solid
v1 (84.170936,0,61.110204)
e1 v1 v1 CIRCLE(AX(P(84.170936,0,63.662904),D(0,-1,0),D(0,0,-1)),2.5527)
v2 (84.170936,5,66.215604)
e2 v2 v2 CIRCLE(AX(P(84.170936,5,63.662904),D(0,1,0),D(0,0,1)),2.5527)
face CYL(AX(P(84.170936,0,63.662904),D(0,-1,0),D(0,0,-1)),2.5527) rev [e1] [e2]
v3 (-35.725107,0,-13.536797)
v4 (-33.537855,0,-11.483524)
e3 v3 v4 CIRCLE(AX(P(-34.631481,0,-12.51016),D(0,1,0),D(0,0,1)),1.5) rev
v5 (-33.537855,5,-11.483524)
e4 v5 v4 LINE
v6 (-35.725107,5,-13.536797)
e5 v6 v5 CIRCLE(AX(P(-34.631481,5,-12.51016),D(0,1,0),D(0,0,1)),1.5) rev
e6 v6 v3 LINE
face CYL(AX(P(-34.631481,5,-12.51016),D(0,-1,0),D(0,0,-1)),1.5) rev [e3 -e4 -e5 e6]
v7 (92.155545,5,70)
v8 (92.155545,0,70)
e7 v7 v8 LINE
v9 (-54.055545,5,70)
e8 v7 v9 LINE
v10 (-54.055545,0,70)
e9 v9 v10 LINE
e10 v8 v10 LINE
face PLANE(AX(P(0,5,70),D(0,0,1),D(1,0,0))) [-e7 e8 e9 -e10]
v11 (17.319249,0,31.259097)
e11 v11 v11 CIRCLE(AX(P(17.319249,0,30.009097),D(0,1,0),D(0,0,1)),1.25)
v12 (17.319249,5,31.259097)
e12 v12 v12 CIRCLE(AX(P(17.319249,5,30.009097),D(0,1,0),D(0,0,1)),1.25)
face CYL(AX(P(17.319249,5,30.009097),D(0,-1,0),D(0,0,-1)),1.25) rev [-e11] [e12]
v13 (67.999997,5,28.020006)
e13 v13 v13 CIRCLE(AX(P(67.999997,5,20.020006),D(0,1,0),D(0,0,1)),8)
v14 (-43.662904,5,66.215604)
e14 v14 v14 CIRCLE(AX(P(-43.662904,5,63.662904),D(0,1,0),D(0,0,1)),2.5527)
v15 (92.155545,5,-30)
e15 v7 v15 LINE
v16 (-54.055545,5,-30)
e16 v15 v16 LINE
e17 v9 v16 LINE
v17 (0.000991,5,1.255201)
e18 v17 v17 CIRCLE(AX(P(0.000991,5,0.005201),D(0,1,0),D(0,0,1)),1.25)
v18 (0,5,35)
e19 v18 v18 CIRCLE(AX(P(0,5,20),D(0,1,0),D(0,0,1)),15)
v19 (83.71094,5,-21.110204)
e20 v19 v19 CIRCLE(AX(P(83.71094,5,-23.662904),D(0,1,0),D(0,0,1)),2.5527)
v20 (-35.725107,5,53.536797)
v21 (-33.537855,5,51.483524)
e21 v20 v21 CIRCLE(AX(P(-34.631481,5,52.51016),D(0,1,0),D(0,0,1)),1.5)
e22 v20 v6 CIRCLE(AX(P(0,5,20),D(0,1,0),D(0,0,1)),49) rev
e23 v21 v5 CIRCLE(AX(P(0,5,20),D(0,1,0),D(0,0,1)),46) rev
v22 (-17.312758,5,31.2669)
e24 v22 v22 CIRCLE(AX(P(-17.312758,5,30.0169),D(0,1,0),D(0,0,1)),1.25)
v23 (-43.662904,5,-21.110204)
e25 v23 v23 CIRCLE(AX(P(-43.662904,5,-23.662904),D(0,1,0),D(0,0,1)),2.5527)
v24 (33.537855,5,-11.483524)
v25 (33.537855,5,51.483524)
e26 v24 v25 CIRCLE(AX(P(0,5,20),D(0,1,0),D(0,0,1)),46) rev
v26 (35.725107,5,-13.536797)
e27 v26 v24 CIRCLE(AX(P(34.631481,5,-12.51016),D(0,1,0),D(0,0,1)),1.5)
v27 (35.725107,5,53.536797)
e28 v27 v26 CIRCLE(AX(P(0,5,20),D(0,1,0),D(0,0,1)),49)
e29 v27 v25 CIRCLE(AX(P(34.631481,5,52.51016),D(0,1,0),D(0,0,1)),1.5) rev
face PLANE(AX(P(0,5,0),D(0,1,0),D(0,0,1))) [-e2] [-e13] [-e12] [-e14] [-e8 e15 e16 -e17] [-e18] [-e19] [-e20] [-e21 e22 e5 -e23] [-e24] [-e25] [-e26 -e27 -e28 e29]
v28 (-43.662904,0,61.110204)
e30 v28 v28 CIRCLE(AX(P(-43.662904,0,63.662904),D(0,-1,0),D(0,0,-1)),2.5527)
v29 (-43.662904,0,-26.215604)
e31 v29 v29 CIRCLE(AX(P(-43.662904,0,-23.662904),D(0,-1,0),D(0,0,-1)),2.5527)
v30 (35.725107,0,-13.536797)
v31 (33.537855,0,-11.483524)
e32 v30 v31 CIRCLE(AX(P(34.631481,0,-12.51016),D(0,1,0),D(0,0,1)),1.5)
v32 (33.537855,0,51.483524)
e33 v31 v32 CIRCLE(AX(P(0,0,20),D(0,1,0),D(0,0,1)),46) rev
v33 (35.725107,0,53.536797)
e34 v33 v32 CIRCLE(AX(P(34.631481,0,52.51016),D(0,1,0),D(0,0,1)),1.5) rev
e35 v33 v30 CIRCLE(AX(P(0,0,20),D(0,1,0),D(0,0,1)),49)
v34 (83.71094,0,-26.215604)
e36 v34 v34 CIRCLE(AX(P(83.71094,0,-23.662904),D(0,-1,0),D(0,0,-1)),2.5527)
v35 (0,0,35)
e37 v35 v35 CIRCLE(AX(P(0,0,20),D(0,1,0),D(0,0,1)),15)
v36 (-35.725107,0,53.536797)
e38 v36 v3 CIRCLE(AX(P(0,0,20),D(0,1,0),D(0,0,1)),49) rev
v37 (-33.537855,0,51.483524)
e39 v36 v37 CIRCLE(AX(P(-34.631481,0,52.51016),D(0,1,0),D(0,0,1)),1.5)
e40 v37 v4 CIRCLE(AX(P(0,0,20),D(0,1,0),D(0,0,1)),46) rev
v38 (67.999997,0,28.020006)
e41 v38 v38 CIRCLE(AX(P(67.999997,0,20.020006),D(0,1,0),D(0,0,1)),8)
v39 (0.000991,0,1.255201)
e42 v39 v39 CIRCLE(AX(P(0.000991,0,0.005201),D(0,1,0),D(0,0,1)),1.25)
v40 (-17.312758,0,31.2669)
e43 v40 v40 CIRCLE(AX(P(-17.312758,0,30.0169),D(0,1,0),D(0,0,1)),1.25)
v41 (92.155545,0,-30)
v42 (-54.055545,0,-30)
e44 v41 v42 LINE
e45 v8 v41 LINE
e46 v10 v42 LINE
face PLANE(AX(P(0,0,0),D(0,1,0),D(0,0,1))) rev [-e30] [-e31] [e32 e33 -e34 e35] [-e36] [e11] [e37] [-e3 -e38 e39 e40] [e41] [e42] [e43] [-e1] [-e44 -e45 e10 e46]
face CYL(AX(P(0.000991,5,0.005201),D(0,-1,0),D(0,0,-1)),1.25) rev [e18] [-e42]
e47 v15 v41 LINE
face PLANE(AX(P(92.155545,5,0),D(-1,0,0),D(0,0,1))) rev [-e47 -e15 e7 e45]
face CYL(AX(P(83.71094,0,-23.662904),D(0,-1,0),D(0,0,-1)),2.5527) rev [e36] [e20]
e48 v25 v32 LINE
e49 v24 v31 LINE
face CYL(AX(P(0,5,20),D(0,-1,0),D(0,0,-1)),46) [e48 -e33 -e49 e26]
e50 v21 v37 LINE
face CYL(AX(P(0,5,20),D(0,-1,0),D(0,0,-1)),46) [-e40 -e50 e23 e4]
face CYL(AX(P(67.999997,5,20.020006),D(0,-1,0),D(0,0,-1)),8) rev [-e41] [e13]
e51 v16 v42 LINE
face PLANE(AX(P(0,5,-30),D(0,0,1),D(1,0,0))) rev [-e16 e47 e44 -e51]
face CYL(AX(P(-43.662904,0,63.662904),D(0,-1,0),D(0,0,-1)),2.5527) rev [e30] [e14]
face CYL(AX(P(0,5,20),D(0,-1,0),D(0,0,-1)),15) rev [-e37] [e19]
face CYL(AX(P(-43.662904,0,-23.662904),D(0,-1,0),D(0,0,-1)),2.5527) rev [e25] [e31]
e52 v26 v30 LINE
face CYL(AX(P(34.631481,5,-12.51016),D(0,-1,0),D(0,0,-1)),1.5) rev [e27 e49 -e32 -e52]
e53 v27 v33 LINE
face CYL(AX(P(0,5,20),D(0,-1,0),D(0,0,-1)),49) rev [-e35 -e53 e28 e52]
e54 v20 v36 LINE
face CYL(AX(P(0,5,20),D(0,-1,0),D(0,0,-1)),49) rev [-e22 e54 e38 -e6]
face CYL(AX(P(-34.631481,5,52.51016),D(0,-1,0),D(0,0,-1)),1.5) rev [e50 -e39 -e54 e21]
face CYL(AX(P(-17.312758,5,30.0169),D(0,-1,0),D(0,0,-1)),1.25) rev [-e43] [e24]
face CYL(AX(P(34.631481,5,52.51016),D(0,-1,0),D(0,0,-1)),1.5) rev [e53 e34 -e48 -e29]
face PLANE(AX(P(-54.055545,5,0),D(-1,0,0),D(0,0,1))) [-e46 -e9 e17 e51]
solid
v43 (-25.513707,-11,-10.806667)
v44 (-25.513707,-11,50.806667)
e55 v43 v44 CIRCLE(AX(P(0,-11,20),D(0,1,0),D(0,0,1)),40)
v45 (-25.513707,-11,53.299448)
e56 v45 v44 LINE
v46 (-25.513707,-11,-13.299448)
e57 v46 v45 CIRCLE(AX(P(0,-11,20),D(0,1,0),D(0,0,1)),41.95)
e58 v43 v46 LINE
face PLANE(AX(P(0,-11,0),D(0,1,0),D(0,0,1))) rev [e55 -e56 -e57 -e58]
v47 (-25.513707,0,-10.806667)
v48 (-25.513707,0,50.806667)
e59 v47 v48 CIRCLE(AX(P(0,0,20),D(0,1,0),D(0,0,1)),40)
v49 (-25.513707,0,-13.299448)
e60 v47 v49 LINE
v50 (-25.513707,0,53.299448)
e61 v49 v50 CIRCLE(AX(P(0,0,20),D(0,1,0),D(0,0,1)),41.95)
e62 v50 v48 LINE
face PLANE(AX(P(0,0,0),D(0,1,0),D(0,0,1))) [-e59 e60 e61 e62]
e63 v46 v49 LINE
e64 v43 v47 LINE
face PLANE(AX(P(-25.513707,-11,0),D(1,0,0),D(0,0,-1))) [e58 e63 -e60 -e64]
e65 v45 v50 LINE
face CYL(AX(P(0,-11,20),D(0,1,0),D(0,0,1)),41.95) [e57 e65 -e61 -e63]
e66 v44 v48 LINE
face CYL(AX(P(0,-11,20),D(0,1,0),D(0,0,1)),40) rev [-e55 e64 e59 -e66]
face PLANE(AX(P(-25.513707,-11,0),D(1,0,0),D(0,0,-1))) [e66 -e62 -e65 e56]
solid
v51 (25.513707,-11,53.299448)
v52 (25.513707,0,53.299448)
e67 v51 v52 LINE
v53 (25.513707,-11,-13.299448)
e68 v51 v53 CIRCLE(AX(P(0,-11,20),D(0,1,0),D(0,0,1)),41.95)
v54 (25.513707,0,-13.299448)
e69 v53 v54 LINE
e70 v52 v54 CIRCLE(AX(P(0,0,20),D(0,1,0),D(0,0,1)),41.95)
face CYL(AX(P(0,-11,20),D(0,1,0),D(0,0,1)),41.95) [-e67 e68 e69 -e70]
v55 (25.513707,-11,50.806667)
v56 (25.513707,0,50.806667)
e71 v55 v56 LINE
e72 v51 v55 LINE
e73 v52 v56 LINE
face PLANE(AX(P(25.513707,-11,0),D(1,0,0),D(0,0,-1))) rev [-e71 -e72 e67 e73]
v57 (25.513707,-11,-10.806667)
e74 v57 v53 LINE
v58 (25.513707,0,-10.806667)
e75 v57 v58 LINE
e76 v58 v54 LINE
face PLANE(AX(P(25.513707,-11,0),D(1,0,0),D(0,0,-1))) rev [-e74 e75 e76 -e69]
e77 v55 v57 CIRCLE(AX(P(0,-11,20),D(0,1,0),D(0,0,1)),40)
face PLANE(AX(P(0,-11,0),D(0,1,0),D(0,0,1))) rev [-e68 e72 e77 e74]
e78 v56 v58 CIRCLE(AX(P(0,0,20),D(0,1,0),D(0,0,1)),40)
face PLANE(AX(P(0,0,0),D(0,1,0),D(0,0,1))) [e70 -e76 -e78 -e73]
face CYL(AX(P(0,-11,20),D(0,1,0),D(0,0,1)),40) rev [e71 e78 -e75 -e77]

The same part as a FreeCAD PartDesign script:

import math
import FreeCAD as App
import Part
import Sketcher
from FreeCAD import Vector
Q = App.Units.Quantity

doc = App.newDocument("Part")
params = doc.addObject("Spreadsheet::Sheet", "Params")
for row, (alias, value) in enumerate([
    ("sketch1_diameter", "16 mm"),
    ("sketch1_diameter2", "30 mm"),
    ("sketch1_radius", "46 mm"),
    ("sketch1_radius2", "49 mm"),
    ("sketch1_diameter3", "2.5 mm"),
    ("pad1_length", "5 mm"),
    ("sketch2_width", "25.4 mm"),
    ("groove_angle", "360 deg"),
    ("linearpattern_pitch", "87.325809 mm"),
    ("linearpattern2_pitch", "154.434106 mm"),
    ("linearpattern3_pitch", "127.83384 mm"),
    ("sketch3_radius", "40 mm"),
    ("sketch3_radius2", "41.95 mm"),
    ("pad2_length", "11 mm"),
    ("sketch4_radius", "40 mm"),
    ("sketch4_radius2", "41.95 mm"),
    ("pad3_length", "11 mm"),
], start=1):
    params.set(f"A{row}", alias)
    params.set(f"B{row}", "=" + value)
    params.setAlias(f"B{row}", alias)

body = doc.addObject("PartDesign::Body", "Body")

sketch1 = body.newObject("Sketcher::SketchObject", "Sketch")
sketch1.AttachmentSupport = (doc.getObject("XZ_Plane"), [""])
sketch1.MapMode = "FlatFace"
sketch1.addGeometry(Part.LineSegment(Vector(-54.1, -30, 0), Vector(-54.1, 70, 0)), False)
sketch1.addGeometry(Part.LineSegment(Vector(-54.1, 70, 0), Vector(92.2, 70, 0)), False)
sketch1.addGeometry(Part.LineSegment(Vector(92.2, 70, 0), Vector(92.2, -30, 0)), False)
sketch1.addGeometry(Part.LineSegment(Vector(92.2, -30, 0), Vector(-54.1, -30, 0)), False)
sketch1.addGeometry(Part.ArcOfCircle(Part.Circle(Vector(-34.6, -12.5, 0), Vector(0, 0, 1), 1.5), math.radians(-137), math.radians(43)), False)
sketch1.addGeometry(Part.ArcOfCircle(Part.Circle(Vector(0, 20, 0), Vector(0, 0, 1), 46), math.radians(137), math.radians(223)), False)
sketch1.addGeometry(Part.ArcOfCircle(Part.Circle(Vector(-34.6, 52.5, 0), Vector(0, 0, 1), 1.5), math.radians(-43), math.radians(137)), False)
sketch1.addGeometry(Part.ArcOfCircle(Part.Circle(Vector(0, 20, 0), Vector(0, 0, 1), 49), math.radians(137), math.radians(223)), False)
sketch1.addGeometry(Part.Circle(Vector(-17.3, 30, 0), Vector(0, 0, 1), 1.2), False)
sketch1.addGeometry(Part.Circle(Vector(17.3, 30, 0), Vector(0, 0, 1), 1.2), False)
sketch1.addGeometry(Part.Circle(Vector(68, 20, 0), Vector(0, 0, 1), 8), False)
sketch1.addGeometry(Part.Circle(Vector(0, 20, 0), Vector(0, 0, 1), 15), False)
sketch1.addGeometry(Part.Circle(Vector(0, 0, 0), Vector(0, 0, 1), 1.2), False)
sketch1.addGeometry(Part.ArcOfCircle(Part.Circle(Vector(0, 20, 0), Vector(0, 0, 1), 46), math.radians(-43), math.radians(43)), False)
sketch1.addGeometry(Part.ArcOfCircle(Part.Circle(Vector(34.6, -12.5, 0), Vector(0, 0, 1), 1.5), math.radians(137), math.radians(317)), False)
sketch1.addGeometry(Part.ArcOfCircle(Part.Circle(Vector(0, 20, 0), Vector(0, 0, 1), 49), math.radians(-43), math.radians(43)), False)
sketch1.addGeometry(Part.ArcOfCircle(Part.Circle(Vector(34.6, 52.5, 0), Vector(0, 0, 1), 1.5), math.radians(43), math.radians(223)), False)
sketch1.addConstraint(Sketcher.Constraint("Coincident", 0, 2, 1, 1))
sketch1.addConstraint(Sketcher.Constraint("Coincident", 1, 2, 2, 1))
sketch1.addConstraint(Sketcher.Constraint("Coincident", 2, 2, 3, 1))
sketch1.addConstraint(Sketcher.Constraint("Coincident", 3, 2, 0, 1))
sketch1.addConstraint(Sketcher.Constraint("Tangent", 4, 2, 5, 2))
sketch1.addConstraint(Sketcher.Constraint("Tangent", 5, 1, 6, 1))
sketch1.addConstraint(Sketcher.Constraint("Tangent", 6, 2, 7, 1))
sketch1.addConstraint(Sketcher.Constraint("Tangent", 7, 2, 4, 1))
sketch1.addConstraint(Sketcher.Constraint("Tangent", 13, 1, 14, 1))
sketch1.addConstraint(Sketcher.Constraint("Tangent", 14, 2, 15, 1))
sketch1.addConstraint(Sketcher.Constraint("Tangent", 15, 2, 16, 1))
sketch1.addConstraint(Sketcher.Constraint("Tangent", 16, 2, 13, 2))
sketch1.addConstraint(Sketcher.Constraint("Vertical", 0))
sketch1.addConstraint(Sketcher.Constraint("Horizontal", 1))
sketch1.addConstraint(Sketcher.Constraint("Vertical", 2))
sketch1.addConstraint(Sketcher.Constraint("Horizontal", 3))
sketch1.addConstraint(Sketcher.Constraint("Coincident", 7, 3, 5, 3))
sketch1.addConstraint(Sketcher.Constraint("Coincident", 11, 3, 5, 3))
sketch1.addConstraint(Sketcher.Constraint("Coincident", 13, 3, 5, 3))
sketch1.addConstraint(Sketcher.Constraint("Coincident", 15, 3, 5, 3))
sketch1.addConstraint(Sketcher.Constraint("Equal", 8, 9))
sketch1.addConstraint(Sketcher.Constraint("Equal", 9, 12))
sketch1.addConstraint(Sketcher.Constraint("Equal", 5, 13))
sketch1.addConstraint(Sketcher.Constraint("Equal", 6, 14))
sketch1.addConstraint(Sketcher.Constraint("Symmetric", 4, 3, 14, 3, -2))
sketch1.addConstraint(Sketcher.Constraint("Horizontal", 6, 3, 16, 3))
sketch1.addConstraint(Sketcher.Constraint("Vertical", 4, 3, 6, 3))
sketch1.addConstraint(Sketcher.Constraint("Diameter", 10, 16.0))
sketch1.addConstraint(Sketcher.Constraint("Diameter", 11, 30.0))
sketch1.addConstraint(Sketcher.Constraint("Radius", 5, 46.0))
sketch1.addConstraint(Sketcher.Constraint("Radius", 7, 49.0))
sketch1.addConstraint(Sketcher.Constraint("Diameter", 8, 2.5))
sketch1.addConstraint(Sketcher.Constraint("DistanceY", 0, 1, 0, 2, 100.0))
sketch1.addConstraint(Sketcher.Constraint("DistanceY", -1, 1, 5, 3, 20.0))
sketch1.addConstraint(Sketcher.Constraint("DistanceY", -1, 1, 0, 2, 70.0))
sketch1.addConstraint(Sketcher.Constraint("DistanceY", 7, 2, 12, 3, 13.541999))
sketch1.addConstraint(Sketcher.Constraint("DistanceX", 1, 1, 1, 2, 146.21109))
sketch1.addConstraint(Sketcher.Constraint("DistanceY", -1, 1, 8, 3, 30.0169))
sketch1.addConstraint(Sketcher.Constraint("DistanceY", -1, 1, 12, 3, 0.005201))
sketch1.addConstraint(Sketcher.Constraint("DistanceY", 9, 3, 15, 2, 23.5277))
sketch1.addConstraint(Sketcher.Constraint("DistanceX", 8, 3, -1, 1, 17.312758))
sketch1.addConstraint(Sketcher.Constraint("DistanceX", -1, 1, 9, 3, 17.319249))
sketch1.addConstraint(Sketcher.Constraint("DistanceX", -1, 1, 12, 3, 0.000991))
sketch1.addConstraint(Sketcher.Constraint("DistanceX", 9, 3, 10, 3, 50.680748))
sketch1.addConstraint(Sketcher.Constraint("DistanceY", 10, 3, 9, 3, 9.989092))
sketch1.addConstraint(Sketcher.Constraint("DistanceX", 3, 2, 4, 2, 20.51769))
sketch1.setExpression("Constraints[27]", "Params.sketch1_diameter")
sketch1.setExpression("Constraints[28]", "Params.sketch1_diameter2")
sketch1.setExpression("Constraints[29]", "Params.sketch1_radius")
sketch1.setExpression("Constraints[30]", "Params.sketch1_radius2")
sketch1.setExpression("Constraints[31]", "Params.sketch1_diameter3")
pad1 = body.newObject("PartDesign::Pad", "Pad")
pad1.Profile = sketch1
pad1.setExpression("Length", "Params.pad1_length")
pad1.Reversed = True

sketch2 = body.newObject("Sketcher::SketchObject", "Sketch001")
sketch2.AttachmentSupport = (doc.getObject("YZ_Plane"), [""])
sketch2.MapMode = "FlatFace"
sketch2.AttachmentOffset = App.Placement(Vector(0, 0, -43.662904), App.Rotation())
sketch2.addGeometry(Part.LineSegment(Vector(26.9, 63.7, 0), Vector(0, 63.7, 0)), False)
sketch2.addGeometry(Part.LineSegment(Vector(0, 63.7, 0), Vector(0, 61.1, 0)), False)
sketch2.addGeometry(Part.LineSegment(Vector(0, 61.1, 0), Vector(25.4, 61.1, 0)), False)
sketch2.addGeometry(Part.LineSegment(Vector(25.4, 61.1, 0), Vector(26.9, 63.7, 0)), False)
sketch2.addGeometry(Part.LineSegment(Vector(0, 63.7, 0), Vector(26.9, 63.7, 0)), True)
sketch2.addConstraint(Sketcher.Constraint("Coincident", 0, 2, 1, 1))
sketch2.addConstraint(Sketcher.Constraint("Coincident", 1, 2, 2, 1))
sketch2.addConstraint(Sketcher.Constraint("Coincident", 2, 2, 3, 1))
sketch2.addConstraint(Sketcher.Constraint("Coincident", 3, 2, 0, 1))
sketch2.addConstraint(Sketcher.Constraint("Horizontal", 0))
sketch2.addConstraint(Sketcher.Constraint("Vertical", 1))
sketch2.addConstraint(Sketcher.Constraint("Horizontal", 2))
sketch2.addConstraint(Sketcher.Constraint("Horizontal", 4))
sketch2.addConstraint(Sketcher.Constraint("Coincident", 4, 1, 0, 2))
sketch2.addConstraint(Sketcher.Constraint("PointOnObject", 0, 2, -2))
sketch2.addConstraint(Sketcher.Constraint("Equal", 0, 4))
sketch2.addConstraint(Sketcher.Constraint("Angle", 3, Q("59 deg")))
sketch2.addConstraint(Sketcher.Constraint("DistanceX", 2, 1, 2, 2, 25.4))
sketch2.addConstraint(Sketcher.Constraint("DistanceY", 1, 2, 1, 1, 2.5527))
sketch2.addConstraint(Sketcher.Constraint("DistanceY", -1, 1, 0, 2, 63.662904))
sketch2.setExpression("Constraints[12]", "Params.sketch2_width")
groove = body.newObject("PartDesign::Groove", "Groove")
groove.Profile = sketch2
groove.ReferenceAxis = (sketch2, ["Axis0"])
groove.setExpression("Angle", "Params.groove_angle")
doc.recompute()

linearpattern = body.newObject("PartDesign::LinearPattern", "LinearPattern")
linearpattern.Originals = [groove]
linearpattern.Direction = (doc.getObject("Z_Axis"), [""])
linearpattern.Mode = "offset"
linearpattern.setExpression("Offset", "Params.linearpattern_pitch")
linearpattern.Occurrences = 2
linearpattern.Reversed = True
body.Tip = linearpattern
doc.recompute()

datumline = body.newObject("PartDesign::Line", "DatumLine")
datumline.Placement = App.Placement(Vector(0, 0, 0), App.Rotation(Vector(0, 0, 1), Vector(0.824777944, 0, -0.565456757)))
linearpattern2 = body.newObject("PartDesign::LinearPattern", "LinearPattern001")
linearpattern2.Originals = [groove]
linearpattern2.Direction = (datumline, [""])
linearpattern2.Mode = "offset"
linearpattern2.setExpression("Offset", "Params.linearpattern2_pitch")
linearpattern2.Occurrences = 2
body.Tip = linearpattern2
doc.recompute()

linearpattern3 = body.newObject("PartDesign::LinearPattern", "LinearPattern002")
linearpattern3.Originals = [groove]
linearpattern3.Direction = (doc.getObject("X_Axis"), [""])
linearpattern3.Mode = "offset"
linearpattern3.setExpression("Offset", "Params.linearpattern3_pitch")
linearpattern3.Occurrences = 2
body.Tip = linearpattern3
body2 = doc.addObject("PartDesign::Body", "Body001")

sketch3 = body2.newObject("Sketcher::SketchObject", "Sketch002")
sketch3.AttachmentSupport = (doc.getObject("XZ_Plane001"), [""])
sketch3.MapMode = "FlatFace"
sketch3.addGeometry(Part.ArcOfCircle(Part.Circle(Vector(0, 20, 0), Vector(0, 0, 1), 42), math.radians(127), math.radians(233)), False)
sketch3.addGeometry(Part.LineSegment(Vector(-25.5, 53.3, 0), Vector(-25.5, 50.8, 0)), False)
sketch3.addGeometry(Part.ArcOfCircle(Part.Circle(Vector(0, 20, 0), Vector(0, 0, 1), 40), math.radians(130), math.radians(230)), False)
sketch3.addGeometry(Part.LineSegment(Vector(-25.5, -10.8, 0), Vector(-25.5, -13.3, 0)), False)
sketch3.addConstraint(Sketcher.Constraint("Coincident", 0, 1, 1, 1))
sketch3.addConstraint(Sketcher.Constraint("Coincident", 1, 2, 2, 1))
sketch3.addConstraint(Sketcher.Constraint("Coincident", 2, 2, 3, 1))
sketch3.addConstraint(Sketcher.Constraint("Coincident", 3, 2, 0, 2))
sketch3.addConstraint(Sketcher.Constraint("Vertical", 1))
sketch3.addConstraint(Sketcher.Constraint("Vertical", 3))
sketch3.addConstraint(Sketcher.Constraint("Coincident", 2, 3, 0, 3))
sketch3.addConstraint(Sketcher.Constraint("PointOnObject", 0, 3, -2))
sketch3.addConstraint(Sketcher.Constraint("Vertical", 1, 2, 2, 2))
sketch3.addConstraint(Sketcher.Constraint("Radius", 2, 40.0))
sketch3.addConstraint(Sketcher.Constraint("Radius", 0, 41.95))
sketch3.addConstraint(Sketcher.Constraint("DistanceY", -1, 1, 0, 3, 20.0))
sketch3.addConstraint(Sketcher.Constraint("DistanceY", 1, 2, 1, 1, 2.492781))
sketch3.setExpression("Constraints[9]", "Params.sketch3_radius")
sketch3.setExpression("Constraints[10]", "Params.sketch3_radius2")
pad2 = body2.newObject("PartDesign::Pad", "Pad001")
pad2.Profile = sketch3
pad2.setExpression("Length", "Params.pad2_length")
body3 = doc.addObject("PartDesign::Body", "Body002")

sketch4 = body3.newObject("Sketcher::SketchObject", "Sketch003")
sketch4.AttachmentSupport = (doc.getObject("XZ_Plane002"), [""])
sketch4.MapMode = "FlatFace"
sketch4.addGeometry(Part.LineSegment(Vector(25.5, 50.8, 0), Vector(25.5, 53.3, 0)), False)
sketch4.addGeometry(Part.ArcOfCircle(Part.Circle(Vector(0, 20, 0), Vector(0, 0, 1), 42), math.radians(-53), math.radians(53)), False)
sketch4.addGeometry(Part.LineSegment(Vector(25.5, -13.3, 0), Vector(25.5, -10.8, 0)), False)
sketch4.addGeometry(Part.ArcOfCircle(Part.Circle(Vector(0, 20, 0), Vector(0, 0, 1), 40), math.radians(-50), math.radians(50)), False)
sketch4.addConstraint(Sketcher.Constraint("Coincident", 0, 2, 1, 2))
sketch4.addConstraint(Sketcher.Constraint("Coincident", 1, 1, 2, 1))
sketch4.addConstraint(Sketcher.Constraint("Coincident", 2, 2, 3, 1))
sketch4.addConstraint(Sketcher.Constraint("Coincident", 3, 2, 0, 1))
sketch4.addConstraint(Sketcher.Constraint("Vertical", 0))
sketch4.addConstraint(Sketcher.Constraint("Vertical", 2))
sketch4.addConstraint(Sketcher.Constraint("Coincident", 3, 3, 1, 3))
sketch4.addConstraint(Sketcher.Constraint("PointOnObject", 1, 3, -2))
sketch4.addConstraint(Sketcher.Constraint("Vertical", 0, 2, 1, 1))
sketch4.addConstraint(Sketcher.Constraint("Radius", 3, 40.0))
sketch4.addConstraint(Sketcher.Constraint("Radius", 1, 41.95))
sketch4.addConstraint(Sketcher.Constraint("DistanceY", -1, 1, 1, 3, 20.0))
sketch4.addConstraint(Sketcher.Constraint("DistanceY", 0, 1, 0, 2, 2.492781))
sketch4.setExpression("Constraints[9]", "Params.sketch4_radius")
sketch4.setExpression("Constraints[10]", "Params.sketch4_radius2")
pad3 = body3.newObject("PartDesign::Pad", "Pad002")
pad3.Profile = sketch4
pad3.setExpression("Length", "Params.pad3_length")

doc.recompute()
